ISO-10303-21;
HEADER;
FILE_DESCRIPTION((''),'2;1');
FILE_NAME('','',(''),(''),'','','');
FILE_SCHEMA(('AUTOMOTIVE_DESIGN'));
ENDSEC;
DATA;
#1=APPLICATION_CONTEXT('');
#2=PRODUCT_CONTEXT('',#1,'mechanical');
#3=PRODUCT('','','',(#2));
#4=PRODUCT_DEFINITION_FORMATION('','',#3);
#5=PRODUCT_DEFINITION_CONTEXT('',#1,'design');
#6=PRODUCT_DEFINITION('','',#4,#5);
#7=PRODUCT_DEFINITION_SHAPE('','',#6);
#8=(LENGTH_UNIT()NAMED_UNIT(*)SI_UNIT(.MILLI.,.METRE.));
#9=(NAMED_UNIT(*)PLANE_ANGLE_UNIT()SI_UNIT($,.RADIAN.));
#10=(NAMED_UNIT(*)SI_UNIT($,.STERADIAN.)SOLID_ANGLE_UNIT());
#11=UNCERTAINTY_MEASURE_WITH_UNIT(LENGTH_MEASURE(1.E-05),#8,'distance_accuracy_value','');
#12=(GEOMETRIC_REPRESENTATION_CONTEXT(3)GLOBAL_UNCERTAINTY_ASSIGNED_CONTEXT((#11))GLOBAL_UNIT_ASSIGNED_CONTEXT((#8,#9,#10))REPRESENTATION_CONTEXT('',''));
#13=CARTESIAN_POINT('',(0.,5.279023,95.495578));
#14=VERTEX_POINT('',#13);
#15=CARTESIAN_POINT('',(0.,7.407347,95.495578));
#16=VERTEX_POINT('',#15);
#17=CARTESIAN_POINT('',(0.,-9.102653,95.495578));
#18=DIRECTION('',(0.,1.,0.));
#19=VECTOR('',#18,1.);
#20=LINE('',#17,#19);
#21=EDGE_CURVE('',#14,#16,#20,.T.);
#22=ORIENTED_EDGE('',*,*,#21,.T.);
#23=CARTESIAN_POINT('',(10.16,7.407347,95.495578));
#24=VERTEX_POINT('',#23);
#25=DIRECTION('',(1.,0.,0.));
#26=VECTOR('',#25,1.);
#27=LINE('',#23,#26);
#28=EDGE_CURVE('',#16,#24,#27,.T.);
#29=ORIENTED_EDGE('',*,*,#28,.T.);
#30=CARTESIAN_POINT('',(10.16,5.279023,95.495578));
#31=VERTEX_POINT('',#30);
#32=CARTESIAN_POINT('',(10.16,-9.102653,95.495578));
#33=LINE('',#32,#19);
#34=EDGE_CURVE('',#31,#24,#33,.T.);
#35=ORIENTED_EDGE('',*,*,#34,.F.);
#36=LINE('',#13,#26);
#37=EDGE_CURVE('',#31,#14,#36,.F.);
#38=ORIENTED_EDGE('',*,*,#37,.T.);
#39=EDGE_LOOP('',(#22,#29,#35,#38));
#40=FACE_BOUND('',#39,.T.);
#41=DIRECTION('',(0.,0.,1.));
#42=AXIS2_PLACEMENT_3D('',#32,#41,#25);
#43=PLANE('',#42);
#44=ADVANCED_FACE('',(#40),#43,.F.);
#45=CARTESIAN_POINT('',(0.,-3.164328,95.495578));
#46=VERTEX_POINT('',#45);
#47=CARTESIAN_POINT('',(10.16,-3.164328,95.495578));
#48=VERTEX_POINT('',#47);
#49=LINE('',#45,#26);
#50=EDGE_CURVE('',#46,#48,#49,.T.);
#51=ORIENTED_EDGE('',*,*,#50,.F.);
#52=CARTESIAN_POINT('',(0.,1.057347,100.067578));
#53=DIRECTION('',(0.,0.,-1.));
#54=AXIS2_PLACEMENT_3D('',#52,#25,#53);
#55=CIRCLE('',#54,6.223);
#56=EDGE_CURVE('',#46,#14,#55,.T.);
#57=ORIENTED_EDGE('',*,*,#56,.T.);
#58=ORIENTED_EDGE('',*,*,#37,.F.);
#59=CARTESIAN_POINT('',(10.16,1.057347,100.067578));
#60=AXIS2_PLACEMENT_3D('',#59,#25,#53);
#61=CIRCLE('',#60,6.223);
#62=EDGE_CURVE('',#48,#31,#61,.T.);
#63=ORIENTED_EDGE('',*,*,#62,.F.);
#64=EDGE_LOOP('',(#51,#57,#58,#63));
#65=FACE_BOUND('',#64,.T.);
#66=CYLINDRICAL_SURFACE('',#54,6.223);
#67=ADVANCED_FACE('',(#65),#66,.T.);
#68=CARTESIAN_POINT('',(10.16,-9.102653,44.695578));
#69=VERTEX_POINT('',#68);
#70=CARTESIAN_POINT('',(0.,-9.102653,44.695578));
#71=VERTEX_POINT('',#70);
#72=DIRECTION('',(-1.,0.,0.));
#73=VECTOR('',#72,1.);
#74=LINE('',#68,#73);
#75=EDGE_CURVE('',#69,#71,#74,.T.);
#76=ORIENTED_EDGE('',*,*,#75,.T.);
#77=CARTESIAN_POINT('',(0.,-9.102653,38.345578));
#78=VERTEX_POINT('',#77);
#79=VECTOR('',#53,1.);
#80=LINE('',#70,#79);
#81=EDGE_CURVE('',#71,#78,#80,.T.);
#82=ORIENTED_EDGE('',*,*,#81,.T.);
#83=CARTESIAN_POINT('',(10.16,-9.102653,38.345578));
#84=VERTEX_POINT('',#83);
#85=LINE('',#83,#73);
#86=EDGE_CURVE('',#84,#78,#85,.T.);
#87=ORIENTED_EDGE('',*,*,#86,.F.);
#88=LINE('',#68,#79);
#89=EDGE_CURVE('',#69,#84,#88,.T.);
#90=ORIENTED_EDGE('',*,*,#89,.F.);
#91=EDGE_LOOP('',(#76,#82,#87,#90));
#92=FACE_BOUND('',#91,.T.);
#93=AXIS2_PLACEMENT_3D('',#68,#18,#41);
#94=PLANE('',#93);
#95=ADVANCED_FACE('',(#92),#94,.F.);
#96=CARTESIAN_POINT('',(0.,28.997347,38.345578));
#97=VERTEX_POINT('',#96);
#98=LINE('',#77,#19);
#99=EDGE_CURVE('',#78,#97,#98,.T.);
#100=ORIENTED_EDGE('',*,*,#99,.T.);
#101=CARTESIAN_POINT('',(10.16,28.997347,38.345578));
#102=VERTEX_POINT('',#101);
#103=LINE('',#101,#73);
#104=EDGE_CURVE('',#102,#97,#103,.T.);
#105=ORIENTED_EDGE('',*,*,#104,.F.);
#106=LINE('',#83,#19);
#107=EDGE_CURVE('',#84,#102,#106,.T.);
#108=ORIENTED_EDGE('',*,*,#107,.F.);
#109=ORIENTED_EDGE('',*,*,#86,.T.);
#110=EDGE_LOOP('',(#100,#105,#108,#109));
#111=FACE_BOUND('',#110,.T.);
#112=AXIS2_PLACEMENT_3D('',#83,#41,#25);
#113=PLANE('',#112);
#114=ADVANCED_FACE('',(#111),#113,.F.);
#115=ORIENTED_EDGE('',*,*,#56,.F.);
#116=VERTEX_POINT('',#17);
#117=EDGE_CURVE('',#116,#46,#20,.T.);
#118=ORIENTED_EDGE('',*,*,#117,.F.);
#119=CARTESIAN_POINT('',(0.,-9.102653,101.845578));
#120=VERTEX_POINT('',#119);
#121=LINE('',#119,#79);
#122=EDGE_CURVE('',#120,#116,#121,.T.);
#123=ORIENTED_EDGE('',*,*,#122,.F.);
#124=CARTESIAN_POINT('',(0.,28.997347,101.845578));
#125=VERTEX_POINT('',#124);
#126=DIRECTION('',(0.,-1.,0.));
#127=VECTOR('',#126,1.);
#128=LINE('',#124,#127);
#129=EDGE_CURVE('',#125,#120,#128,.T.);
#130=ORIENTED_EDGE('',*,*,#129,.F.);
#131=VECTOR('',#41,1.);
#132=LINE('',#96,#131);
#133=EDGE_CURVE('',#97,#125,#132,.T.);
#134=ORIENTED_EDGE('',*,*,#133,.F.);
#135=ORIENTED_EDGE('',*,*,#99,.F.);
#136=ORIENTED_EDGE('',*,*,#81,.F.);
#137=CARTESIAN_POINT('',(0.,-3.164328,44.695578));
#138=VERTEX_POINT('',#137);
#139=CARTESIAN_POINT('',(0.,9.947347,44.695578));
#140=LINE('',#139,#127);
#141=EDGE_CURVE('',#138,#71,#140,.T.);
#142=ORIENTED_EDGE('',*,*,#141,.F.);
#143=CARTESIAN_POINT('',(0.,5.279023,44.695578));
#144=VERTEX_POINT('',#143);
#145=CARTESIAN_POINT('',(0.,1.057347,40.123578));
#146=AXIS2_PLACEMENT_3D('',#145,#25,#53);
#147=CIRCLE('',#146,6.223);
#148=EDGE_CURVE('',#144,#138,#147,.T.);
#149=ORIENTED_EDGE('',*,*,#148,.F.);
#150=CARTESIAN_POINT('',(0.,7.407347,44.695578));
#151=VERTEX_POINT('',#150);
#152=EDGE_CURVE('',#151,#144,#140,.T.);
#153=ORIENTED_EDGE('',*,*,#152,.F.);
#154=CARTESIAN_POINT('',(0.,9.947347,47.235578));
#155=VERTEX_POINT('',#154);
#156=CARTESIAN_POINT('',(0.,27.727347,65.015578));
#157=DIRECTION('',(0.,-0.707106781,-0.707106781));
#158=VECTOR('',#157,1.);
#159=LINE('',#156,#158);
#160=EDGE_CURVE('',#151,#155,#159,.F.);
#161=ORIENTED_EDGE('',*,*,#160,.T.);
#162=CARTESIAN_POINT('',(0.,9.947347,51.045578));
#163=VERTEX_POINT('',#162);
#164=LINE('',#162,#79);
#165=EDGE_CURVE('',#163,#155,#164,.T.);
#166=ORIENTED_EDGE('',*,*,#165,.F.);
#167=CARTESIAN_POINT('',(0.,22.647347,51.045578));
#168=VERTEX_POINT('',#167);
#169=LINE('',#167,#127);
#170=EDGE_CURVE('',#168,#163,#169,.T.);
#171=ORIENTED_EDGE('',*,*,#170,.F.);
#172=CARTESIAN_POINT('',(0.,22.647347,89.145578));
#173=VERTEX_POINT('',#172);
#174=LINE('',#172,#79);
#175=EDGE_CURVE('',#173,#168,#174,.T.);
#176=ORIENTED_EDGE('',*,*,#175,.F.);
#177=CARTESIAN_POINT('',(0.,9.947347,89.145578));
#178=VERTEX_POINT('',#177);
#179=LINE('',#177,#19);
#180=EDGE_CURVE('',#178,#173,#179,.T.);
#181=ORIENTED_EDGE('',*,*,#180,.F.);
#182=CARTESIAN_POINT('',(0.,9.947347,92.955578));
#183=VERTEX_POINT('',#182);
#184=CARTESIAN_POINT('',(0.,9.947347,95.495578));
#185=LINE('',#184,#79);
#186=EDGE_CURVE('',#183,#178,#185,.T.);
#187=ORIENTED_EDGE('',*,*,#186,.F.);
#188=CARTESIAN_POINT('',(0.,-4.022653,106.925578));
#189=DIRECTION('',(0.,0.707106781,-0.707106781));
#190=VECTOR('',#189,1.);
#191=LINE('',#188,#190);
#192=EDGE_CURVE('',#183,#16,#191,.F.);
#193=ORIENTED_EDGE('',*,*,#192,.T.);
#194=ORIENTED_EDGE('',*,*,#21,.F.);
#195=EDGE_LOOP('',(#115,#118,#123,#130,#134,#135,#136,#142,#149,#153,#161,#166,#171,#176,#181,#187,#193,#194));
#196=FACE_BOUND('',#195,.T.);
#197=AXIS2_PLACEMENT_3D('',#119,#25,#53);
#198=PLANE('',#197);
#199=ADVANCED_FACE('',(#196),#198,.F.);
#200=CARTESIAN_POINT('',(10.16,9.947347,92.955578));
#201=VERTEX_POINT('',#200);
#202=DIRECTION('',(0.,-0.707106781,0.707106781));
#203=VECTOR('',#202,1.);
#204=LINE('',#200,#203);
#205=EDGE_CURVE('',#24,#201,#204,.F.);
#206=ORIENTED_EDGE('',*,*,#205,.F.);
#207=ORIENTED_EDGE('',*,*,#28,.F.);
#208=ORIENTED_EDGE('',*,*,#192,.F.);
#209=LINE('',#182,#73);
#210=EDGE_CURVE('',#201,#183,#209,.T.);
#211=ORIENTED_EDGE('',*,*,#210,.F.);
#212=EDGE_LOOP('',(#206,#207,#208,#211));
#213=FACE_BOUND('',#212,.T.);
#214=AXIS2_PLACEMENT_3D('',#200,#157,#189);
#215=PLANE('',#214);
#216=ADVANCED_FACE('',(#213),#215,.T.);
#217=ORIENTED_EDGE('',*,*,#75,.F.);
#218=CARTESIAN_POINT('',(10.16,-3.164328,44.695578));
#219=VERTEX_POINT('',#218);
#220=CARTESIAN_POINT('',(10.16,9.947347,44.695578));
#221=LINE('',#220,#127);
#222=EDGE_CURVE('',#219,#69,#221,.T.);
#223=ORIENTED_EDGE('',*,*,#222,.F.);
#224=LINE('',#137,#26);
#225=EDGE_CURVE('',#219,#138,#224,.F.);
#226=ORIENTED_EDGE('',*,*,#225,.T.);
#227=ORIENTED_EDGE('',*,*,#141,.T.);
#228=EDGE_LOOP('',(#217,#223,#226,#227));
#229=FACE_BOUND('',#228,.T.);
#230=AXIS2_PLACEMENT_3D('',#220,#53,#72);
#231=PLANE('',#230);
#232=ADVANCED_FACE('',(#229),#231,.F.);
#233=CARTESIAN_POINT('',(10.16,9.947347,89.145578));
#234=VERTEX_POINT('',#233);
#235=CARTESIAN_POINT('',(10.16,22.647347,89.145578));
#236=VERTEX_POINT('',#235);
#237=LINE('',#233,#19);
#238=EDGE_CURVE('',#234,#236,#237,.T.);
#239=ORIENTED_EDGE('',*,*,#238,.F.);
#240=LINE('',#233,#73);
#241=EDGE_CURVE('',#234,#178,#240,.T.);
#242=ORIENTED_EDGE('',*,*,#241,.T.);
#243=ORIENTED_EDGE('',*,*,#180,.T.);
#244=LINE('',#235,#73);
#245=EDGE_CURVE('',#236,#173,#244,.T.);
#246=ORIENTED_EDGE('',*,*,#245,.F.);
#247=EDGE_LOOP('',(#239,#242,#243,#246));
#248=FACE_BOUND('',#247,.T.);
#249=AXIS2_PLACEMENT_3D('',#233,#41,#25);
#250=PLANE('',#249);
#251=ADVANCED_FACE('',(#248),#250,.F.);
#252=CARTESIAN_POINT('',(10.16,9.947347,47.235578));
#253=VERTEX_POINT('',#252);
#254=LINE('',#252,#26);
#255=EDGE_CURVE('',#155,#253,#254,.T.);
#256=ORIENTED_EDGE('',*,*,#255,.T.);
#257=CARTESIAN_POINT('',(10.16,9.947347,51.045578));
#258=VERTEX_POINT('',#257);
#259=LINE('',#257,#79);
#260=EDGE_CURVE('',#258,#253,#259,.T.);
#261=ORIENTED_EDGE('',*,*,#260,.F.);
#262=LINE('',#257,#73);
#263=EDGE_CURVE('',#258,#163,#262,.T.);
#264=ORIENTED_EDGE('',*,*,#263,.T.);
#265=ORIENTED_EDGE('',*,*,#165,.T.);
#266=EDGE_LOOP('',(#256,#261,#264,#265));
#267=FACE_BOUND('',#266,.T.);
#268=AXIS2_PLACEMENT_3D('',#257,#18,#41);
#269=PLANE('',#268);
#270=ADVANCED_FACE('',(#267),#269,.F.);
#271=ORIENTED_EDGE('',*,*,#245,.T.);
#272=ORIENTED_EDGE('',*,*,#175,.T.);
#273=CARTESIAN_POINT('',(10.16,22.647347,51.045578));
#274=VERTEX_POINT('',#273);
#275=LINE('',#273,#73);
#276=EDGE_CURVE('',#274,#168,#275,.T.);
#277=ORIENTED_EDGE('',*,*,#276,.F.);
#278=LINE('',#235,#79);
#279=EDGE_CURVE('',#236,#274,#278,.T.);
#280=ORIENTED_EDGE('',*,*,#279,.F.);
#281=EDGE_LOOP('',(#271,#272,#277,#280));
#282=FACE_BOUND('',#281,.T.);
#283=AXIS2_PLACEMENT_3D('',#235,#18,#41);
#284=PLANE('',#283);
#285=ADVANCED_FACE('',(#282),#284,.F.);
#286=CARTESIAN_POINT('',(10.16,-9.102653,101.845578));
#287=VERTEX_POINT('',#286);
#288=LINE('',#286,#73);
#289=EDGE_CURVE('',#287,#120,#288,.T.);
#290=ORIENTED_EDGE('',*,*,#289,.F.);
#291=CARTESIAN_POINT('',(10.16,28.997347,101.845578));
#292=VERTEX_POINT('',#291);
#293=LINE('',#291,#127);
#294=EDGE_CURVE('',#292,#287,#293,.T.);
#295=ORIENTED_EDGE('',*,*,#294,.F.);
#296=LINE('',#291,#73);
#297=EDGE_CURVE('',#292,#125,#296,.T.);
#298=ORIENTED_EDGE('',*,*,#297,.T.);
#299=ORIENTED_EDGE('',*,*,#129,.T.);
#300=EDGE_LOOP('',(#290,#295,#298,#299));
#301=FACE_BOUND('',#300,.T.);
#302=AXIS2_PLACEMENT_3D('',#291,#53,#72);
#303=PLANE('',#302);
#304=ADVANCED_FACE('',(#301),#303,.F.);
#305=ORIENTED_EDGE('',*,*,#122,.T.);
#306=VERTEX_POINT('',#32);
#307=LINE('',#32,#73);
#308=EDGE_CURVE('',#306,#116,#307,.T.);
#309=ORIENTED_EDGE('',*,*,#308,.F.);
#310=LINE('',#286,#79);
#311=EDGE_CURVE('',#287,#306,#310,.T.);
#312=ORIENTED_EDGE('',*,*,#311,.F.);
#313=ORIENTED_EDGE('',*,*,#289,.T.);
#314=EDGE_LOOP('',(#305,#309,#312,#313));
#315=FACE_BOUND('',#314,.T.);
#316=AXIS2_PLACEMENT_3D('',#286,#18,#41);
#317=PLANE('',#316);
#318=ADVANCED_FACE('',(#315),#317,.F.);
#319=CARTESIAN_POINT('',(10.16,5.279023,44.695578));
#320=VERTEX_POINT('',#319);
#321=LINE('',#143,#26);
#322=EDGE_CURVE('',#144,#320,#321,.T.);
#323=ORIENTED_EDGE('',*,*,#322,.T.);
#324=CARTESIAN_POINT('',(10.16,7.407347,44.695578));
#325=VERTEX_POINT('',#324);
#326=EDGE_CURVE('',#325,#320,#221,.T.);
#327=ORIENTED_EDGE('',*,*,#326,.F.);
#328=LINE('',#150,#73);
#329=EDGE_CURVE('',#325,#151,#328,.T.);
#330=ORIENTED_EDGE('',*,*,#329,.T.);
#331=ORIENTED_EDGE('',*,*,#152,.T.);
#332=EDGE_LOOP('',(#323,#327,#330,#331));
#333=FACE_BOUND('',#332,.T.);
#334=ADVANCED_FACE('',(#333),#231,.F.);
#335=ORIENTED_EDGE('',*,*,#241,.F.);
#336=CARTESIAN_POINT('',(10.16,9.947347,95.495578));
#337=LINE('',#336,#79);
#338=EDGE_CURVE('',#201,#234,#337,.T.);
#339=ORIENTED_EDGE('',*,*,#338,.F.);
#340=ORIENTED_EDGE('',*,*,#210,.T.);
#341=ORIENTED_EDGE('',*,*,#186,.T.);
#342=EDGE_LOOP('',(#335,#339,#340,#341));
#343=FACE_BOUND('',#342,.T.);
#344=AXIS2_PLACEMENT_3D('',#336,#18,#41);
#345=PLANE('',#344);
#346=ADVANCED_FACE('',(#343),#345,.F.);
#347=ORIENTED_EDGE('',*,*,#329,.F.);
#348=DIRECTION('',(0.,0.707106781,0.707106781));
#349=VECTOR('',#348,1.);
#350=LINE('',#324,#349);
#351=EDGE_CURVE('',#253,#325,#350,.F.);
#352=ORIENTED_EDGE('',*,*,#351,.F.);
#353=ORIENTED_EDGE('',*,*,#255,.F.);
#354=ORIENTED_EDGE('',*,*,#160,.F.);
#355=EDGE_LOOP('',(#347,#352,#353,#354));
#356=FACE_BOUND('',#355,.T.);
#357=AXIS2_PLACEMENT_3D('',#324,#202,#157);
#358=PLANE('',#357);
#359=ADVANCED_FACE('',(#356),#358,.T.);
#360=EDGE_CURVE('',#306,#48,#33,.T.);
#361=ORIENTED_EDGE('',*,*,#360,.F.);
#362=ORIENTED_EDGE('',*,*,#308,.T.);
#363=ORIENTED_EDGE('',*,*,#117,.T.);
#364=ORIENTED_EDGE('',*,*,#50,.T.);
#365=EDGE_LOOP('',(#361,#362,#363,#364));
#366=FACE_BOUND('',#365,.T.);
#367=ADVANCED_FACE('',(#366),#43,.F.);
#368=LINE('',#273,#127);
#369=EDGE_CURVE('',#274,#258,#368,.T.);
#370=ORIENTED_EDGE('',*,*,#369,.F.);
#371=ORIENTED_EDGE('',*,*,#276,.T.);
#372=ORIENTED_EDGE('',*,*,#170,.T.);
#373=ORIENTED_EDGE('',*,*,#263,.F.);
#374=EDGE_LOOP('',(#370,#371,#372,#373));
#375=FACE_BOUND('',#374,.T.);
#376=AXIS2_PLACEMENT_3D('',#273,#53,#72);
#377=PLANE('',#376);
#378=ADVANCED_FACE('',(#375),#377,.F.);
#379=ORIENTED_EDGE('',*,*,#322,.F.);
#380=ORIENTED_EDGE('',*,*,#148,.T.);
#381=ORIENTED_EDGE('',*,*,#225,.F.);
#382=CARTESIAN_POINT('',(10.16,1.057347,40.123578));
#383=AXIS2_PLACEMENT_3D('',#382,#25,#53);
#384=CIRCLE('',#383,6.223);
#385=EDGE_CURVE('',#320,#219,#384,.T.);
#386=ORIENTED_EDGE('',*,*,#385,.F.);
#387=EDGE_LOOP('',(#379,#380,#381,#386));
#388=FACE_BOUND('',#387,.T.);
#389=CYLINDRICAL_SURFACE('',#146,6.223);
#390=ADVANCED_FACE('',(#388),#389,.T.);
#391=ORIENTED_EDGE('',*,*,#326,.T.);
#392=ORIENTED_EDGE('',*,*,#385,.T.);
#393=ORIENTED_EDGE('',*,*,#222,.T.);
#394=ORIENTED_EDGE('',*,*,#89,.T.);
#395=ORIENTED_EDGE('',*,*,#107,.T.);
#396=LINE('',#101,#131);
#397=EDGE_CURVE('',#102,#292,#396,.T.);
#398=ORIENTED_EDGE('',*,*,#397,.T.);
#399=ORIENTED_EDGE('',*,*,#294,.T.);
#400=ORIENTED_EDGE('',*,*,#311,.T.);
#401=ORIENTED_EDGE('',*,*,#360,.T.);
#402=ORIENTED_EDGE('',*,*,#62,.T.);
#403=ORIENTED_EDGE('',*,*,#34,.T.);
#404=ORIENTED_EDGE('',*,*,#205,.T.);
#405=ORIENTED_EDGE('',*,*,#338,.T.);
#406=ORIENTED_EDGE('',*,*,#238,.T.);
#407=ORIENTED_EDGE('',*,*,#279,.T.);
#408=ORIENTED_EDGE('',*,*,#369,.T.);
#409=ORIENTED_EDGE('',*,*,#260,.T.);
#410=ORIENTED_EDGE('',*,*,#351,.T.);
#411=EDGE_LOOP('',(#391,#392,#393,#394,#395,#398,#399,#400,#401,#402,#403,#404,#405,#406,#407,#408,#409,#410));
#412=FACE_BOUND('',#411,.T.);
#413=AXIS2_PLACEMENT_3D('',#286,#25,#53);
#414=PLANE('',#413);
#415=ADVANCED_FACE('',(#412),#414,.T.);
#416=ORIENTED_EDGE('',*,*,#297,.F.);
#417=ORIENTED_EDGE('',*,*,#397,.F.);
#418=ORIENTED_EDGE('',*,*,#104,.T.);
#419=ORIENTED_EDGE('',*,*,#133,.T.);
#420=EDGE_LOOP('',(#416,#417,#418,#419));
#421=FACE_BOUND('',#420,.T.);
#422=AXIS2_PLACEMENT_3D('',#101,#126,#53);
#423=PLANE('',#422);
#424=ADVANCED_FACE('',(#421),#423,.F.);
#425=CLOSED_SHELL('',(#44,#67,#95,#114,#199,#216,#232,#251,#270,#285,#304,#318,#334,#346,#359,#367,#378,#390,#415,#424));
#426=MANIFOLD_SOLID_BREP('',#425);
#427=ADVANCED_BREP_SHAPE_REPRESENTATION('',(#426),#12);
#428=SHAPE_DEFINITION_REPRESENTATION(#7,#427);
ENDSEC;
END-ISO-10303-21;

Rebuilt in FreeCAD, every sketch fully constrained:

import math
import FreeCAD as App
import Part
import Sketcher
Q = App.Units.Quantity


def edges_at(feature, points):
    """Names of the edges that pass closest to the given points."""
    edges = feature.Shape.Edges
    near = lambda p: min(range(len(edges)), key=lambda i: edges[i].distToShape(Part.Vertex(*p))[0])
    return sorted({f"Edge{near(p) + 1}" for p in points})

doc = App.newDocument("Part")
body = doc.addObject("PartDesign::Body", "Body")

sketch1 = doc.addObject("Sketcher::SketchObject", "Sketch")
body.addObject(sketch1)
sketch1.AttachmentSupport = (doc.YZ_Plane, [""])
sketch1.MapMode = "FlatFace"
sketch1.addGeometry([
    Part.LineSegment(App.Vector(-9.102653, 101.845578, 0), App.Vector(-9.102653, 95.495578, 0)),
    Part.LineSegment(App.Vector(-9.102653, 95.495578, 0), App.Vector(9.947347, 95.495578, 0)),
    Part.LineSegment(App.Vector(9.947347, 95.495578, 0), App.Vector(9.947347, 89.145578, 0)),
    Part.LineSegment(App.Vector(9.947347, 89.145578, 0), App.Vector(22.647347, 89.145578, 0)),
    Part.LineSegment(App.Vector(22.647347, 89.145578, 0), App.Vector(22.647347, 51.045578, 0)),
    Part.LineSegment(App.Vector(22.647347, 51.045578, 0), App.Vector(9.947347, 51.045578, 0)),
    Part.LineSegment(App.Vector(9.947347, 51.045578, 0), App.Vector(9.947347, 44.695578, 0)),
    Part.LineSegment(App.Vector(9.947347, 44.695578, 0), App.Vector(-9.102653, 44.695578, 0)),
    Part.LineSegment(App.Vector(-9.102653, 44.695578, 0), App.Vector(-9.102653, 38.345578, 0)),
    Part.LineSegment(App.Vector(-9.102653, 38.345578, 0), App.Vector(28.997347, 38.345578, 0)),
    Part.LineSegment(App.Vector(28.997347, 38.345578, 0), App.Vector(28.997347, 101.845578, 0)),
    Part.LineSegment(App.Vector(28.997347, 101.845578, 0), App.Vector(-9.102653, 101.845578, 0)),
], False)
sketch1.addConstraint([
    Sketcher.Constraint("Coincident", 0, 2, 1, 1),
    Sketcher.Constraint("Coincident", 1, 2, 2, 1),
    Sketcher.Constraint("Coincident", 2, 2, 3, 1),
    Sketcher.Constraint("Coincident", 3, 2, 4, 1),
    Sketcher.Constraint("Coincident", 4, 2, 5, 1),
    Sketcher.Constraint("Coincident", 5, 2, 6, 1),
    Sketcher.Constraint("Coincident", 6, 2, 7, 1),
    Sketcher.Constraint("Coincident", 7, 2, 8, 1),
    Sketcher.Constraint("Coincident", 8, 2, 9, 1),
    Sketcher.Constraint("Coincident", 9, 2, 10, 1),
    Sketcher.Constraint("Coincident", 10, 2, 11, 1),
    Sketcher.Constraint("Coincident", 11, 2, 0, 1),
    Sketcher.Constraint("Vertical", 0),
    Sketcher.Constraint("Horizontal", 1),
    Sketcher.Constraint("Vertical", 2),
    Sketcher.Constraint("Horizontal", 3),
    Sketcher.Constraint("Vertical", 4),
    Sketcher.Constraint("Horizontal", 5),
    Sketcher.Constraint("Vertical", 6),
    Sketcher.Constraint("Horizontal", 7),
    Sketcher.Constraint("Vertical", 8),
    Sketcher.Constraint("Horizontal", 9),
    Sketcher.Constraint("Vertical", 10),
    Sketcher.Constraint("Horizontal", 11),
    Sketcher.Constraint("Vertical", 2, 2, 5, 2),
    Sketcher.Constraint("Vertical", 0, 2, 7, 2),
    Sketcher.Constraint("Equal", 0, 2),
    Sketcher.Constraint("Equal", 11, 4),
    Sketcher.Constraint("Equal", 2, 6),
    Sketcher.Constraint("Equal", 6, 8),
    Sketcher.Constraint("DistanceX", 3, 1, 3, 2, Q("0.5 in")),
    Sketcher.Constraint("DistanceX", 9, 1, 9, 2, Q("1.5 in")),
    Sketcher.Constraint("DistanceY", 10, 1, 10, 2, Q("2.5 in")),
    Sketcher.Constraint("DistanceX", 1, 1, 1, 2, Q("0.75 in")),
    Sketcher.Constraint("DistanceX", 0, 2, -1, 1, 9.102653),
    Sketcher.Constraint("DistanceY", -1, 1, 0, 2, 95.495578),
])
pad1 = doc.addObject("PartDesign::Pad", "Pad")
body.addObject(pad1)
pad1.Profile = sketch1
pad1.Length = Q("0.4 in")

sketch2 = doc.addObject("Sketcher::SketchObject", "Sketch001")
body.addObject(sketch2)
sketch2.AttachmentSupport = (doc.YZ_Plane, [""])
sketch2.MapMode = "FlatFace"
sketch2.AttachmentOffset = App.Placement(App.Vector(0, 0, 0.4 * 25.4), App.Rotation())
sketch2.addGeometry([
    Part.LineSegment(App.Vector(7.020941, 101.845578, 0), App.Vector(-4.906246, 101.845578, 0)),
    Part.ArcOfCircle(Part.Circle(App.Vector(1.057347, 100.067578, 0), App.Vector(0, 0, 1), 6.223), math.radians(163.39845), math.radians(376.60155)),
    Part.LineSegment(App.Vector(-4.906246, 38.345578, 0), App.Vector(7.020941, 38.345578, 0)),
    Part.ArcOfCircle(Part.Circle(App.Vector(1.057347, 40.123578, 0), App.Vector(0, 0, 1), 6.223), math.radians(-16.60155), math.radians(196.60155)),
], False)
sketch2.addConstraint([
    Sketcher.Constraint("Coincident", 0, 1, 1, 2),
    Sketcher.Constraint("Coincident", 1, 1, 0, 2),
    Sketcher.Constraint("Coincident", 2, 1, 3, 2),
    Sketcher.Constraint("Coincident", 3, 1, 2, 2),
    Sketcher.Constraint("Horizontal", 0),
    Sketcher.Constraint("Horizontal", 2),
    Sketcher.Constraint("Equal", 1, 3),
    Sketcher.Constraint("Vertical", 1, 3, 3, 3),
    Sketcher.Constraint("Vertical", 1, 1, 2, 1),
    Sketcher.Constraint("Radius", 1, Q("0.245 in")),
    Sketcher.Constraint("DistanceY", 2, 1, 1, 1, Q("2.5 in")),
    Sketcher.Constraint("DistanceY", 3, 3, 1, 3, Q("2.36 in")),
    Sketcher.Constraint("DistanceX", -1, 1, 0, 1, 7.020941),
    Sketcher.Constraint("DistanceY", -1, 1, 1, 3, 100.067578),
])
pad2 = doc.addObject("PartDesign::Pad", "Pad001")
body.addObject(pad2)
pad2.Profile = sketch2
pad2.Length = Q("0.4 in")
pad2.Reversed = True
doc.recompute()

chamfer = doc.addObject("PartDesign::Chamfer", "Chamfer")
body.addObject(chamfer)
chamfer.Base = (pad2, edges_at(pad2, [(5.08, 9.947, 44.696), (5.08, 9.947, 95.496)]))
chamfer.Size = Q("0.1 in")

doc.recompute()
